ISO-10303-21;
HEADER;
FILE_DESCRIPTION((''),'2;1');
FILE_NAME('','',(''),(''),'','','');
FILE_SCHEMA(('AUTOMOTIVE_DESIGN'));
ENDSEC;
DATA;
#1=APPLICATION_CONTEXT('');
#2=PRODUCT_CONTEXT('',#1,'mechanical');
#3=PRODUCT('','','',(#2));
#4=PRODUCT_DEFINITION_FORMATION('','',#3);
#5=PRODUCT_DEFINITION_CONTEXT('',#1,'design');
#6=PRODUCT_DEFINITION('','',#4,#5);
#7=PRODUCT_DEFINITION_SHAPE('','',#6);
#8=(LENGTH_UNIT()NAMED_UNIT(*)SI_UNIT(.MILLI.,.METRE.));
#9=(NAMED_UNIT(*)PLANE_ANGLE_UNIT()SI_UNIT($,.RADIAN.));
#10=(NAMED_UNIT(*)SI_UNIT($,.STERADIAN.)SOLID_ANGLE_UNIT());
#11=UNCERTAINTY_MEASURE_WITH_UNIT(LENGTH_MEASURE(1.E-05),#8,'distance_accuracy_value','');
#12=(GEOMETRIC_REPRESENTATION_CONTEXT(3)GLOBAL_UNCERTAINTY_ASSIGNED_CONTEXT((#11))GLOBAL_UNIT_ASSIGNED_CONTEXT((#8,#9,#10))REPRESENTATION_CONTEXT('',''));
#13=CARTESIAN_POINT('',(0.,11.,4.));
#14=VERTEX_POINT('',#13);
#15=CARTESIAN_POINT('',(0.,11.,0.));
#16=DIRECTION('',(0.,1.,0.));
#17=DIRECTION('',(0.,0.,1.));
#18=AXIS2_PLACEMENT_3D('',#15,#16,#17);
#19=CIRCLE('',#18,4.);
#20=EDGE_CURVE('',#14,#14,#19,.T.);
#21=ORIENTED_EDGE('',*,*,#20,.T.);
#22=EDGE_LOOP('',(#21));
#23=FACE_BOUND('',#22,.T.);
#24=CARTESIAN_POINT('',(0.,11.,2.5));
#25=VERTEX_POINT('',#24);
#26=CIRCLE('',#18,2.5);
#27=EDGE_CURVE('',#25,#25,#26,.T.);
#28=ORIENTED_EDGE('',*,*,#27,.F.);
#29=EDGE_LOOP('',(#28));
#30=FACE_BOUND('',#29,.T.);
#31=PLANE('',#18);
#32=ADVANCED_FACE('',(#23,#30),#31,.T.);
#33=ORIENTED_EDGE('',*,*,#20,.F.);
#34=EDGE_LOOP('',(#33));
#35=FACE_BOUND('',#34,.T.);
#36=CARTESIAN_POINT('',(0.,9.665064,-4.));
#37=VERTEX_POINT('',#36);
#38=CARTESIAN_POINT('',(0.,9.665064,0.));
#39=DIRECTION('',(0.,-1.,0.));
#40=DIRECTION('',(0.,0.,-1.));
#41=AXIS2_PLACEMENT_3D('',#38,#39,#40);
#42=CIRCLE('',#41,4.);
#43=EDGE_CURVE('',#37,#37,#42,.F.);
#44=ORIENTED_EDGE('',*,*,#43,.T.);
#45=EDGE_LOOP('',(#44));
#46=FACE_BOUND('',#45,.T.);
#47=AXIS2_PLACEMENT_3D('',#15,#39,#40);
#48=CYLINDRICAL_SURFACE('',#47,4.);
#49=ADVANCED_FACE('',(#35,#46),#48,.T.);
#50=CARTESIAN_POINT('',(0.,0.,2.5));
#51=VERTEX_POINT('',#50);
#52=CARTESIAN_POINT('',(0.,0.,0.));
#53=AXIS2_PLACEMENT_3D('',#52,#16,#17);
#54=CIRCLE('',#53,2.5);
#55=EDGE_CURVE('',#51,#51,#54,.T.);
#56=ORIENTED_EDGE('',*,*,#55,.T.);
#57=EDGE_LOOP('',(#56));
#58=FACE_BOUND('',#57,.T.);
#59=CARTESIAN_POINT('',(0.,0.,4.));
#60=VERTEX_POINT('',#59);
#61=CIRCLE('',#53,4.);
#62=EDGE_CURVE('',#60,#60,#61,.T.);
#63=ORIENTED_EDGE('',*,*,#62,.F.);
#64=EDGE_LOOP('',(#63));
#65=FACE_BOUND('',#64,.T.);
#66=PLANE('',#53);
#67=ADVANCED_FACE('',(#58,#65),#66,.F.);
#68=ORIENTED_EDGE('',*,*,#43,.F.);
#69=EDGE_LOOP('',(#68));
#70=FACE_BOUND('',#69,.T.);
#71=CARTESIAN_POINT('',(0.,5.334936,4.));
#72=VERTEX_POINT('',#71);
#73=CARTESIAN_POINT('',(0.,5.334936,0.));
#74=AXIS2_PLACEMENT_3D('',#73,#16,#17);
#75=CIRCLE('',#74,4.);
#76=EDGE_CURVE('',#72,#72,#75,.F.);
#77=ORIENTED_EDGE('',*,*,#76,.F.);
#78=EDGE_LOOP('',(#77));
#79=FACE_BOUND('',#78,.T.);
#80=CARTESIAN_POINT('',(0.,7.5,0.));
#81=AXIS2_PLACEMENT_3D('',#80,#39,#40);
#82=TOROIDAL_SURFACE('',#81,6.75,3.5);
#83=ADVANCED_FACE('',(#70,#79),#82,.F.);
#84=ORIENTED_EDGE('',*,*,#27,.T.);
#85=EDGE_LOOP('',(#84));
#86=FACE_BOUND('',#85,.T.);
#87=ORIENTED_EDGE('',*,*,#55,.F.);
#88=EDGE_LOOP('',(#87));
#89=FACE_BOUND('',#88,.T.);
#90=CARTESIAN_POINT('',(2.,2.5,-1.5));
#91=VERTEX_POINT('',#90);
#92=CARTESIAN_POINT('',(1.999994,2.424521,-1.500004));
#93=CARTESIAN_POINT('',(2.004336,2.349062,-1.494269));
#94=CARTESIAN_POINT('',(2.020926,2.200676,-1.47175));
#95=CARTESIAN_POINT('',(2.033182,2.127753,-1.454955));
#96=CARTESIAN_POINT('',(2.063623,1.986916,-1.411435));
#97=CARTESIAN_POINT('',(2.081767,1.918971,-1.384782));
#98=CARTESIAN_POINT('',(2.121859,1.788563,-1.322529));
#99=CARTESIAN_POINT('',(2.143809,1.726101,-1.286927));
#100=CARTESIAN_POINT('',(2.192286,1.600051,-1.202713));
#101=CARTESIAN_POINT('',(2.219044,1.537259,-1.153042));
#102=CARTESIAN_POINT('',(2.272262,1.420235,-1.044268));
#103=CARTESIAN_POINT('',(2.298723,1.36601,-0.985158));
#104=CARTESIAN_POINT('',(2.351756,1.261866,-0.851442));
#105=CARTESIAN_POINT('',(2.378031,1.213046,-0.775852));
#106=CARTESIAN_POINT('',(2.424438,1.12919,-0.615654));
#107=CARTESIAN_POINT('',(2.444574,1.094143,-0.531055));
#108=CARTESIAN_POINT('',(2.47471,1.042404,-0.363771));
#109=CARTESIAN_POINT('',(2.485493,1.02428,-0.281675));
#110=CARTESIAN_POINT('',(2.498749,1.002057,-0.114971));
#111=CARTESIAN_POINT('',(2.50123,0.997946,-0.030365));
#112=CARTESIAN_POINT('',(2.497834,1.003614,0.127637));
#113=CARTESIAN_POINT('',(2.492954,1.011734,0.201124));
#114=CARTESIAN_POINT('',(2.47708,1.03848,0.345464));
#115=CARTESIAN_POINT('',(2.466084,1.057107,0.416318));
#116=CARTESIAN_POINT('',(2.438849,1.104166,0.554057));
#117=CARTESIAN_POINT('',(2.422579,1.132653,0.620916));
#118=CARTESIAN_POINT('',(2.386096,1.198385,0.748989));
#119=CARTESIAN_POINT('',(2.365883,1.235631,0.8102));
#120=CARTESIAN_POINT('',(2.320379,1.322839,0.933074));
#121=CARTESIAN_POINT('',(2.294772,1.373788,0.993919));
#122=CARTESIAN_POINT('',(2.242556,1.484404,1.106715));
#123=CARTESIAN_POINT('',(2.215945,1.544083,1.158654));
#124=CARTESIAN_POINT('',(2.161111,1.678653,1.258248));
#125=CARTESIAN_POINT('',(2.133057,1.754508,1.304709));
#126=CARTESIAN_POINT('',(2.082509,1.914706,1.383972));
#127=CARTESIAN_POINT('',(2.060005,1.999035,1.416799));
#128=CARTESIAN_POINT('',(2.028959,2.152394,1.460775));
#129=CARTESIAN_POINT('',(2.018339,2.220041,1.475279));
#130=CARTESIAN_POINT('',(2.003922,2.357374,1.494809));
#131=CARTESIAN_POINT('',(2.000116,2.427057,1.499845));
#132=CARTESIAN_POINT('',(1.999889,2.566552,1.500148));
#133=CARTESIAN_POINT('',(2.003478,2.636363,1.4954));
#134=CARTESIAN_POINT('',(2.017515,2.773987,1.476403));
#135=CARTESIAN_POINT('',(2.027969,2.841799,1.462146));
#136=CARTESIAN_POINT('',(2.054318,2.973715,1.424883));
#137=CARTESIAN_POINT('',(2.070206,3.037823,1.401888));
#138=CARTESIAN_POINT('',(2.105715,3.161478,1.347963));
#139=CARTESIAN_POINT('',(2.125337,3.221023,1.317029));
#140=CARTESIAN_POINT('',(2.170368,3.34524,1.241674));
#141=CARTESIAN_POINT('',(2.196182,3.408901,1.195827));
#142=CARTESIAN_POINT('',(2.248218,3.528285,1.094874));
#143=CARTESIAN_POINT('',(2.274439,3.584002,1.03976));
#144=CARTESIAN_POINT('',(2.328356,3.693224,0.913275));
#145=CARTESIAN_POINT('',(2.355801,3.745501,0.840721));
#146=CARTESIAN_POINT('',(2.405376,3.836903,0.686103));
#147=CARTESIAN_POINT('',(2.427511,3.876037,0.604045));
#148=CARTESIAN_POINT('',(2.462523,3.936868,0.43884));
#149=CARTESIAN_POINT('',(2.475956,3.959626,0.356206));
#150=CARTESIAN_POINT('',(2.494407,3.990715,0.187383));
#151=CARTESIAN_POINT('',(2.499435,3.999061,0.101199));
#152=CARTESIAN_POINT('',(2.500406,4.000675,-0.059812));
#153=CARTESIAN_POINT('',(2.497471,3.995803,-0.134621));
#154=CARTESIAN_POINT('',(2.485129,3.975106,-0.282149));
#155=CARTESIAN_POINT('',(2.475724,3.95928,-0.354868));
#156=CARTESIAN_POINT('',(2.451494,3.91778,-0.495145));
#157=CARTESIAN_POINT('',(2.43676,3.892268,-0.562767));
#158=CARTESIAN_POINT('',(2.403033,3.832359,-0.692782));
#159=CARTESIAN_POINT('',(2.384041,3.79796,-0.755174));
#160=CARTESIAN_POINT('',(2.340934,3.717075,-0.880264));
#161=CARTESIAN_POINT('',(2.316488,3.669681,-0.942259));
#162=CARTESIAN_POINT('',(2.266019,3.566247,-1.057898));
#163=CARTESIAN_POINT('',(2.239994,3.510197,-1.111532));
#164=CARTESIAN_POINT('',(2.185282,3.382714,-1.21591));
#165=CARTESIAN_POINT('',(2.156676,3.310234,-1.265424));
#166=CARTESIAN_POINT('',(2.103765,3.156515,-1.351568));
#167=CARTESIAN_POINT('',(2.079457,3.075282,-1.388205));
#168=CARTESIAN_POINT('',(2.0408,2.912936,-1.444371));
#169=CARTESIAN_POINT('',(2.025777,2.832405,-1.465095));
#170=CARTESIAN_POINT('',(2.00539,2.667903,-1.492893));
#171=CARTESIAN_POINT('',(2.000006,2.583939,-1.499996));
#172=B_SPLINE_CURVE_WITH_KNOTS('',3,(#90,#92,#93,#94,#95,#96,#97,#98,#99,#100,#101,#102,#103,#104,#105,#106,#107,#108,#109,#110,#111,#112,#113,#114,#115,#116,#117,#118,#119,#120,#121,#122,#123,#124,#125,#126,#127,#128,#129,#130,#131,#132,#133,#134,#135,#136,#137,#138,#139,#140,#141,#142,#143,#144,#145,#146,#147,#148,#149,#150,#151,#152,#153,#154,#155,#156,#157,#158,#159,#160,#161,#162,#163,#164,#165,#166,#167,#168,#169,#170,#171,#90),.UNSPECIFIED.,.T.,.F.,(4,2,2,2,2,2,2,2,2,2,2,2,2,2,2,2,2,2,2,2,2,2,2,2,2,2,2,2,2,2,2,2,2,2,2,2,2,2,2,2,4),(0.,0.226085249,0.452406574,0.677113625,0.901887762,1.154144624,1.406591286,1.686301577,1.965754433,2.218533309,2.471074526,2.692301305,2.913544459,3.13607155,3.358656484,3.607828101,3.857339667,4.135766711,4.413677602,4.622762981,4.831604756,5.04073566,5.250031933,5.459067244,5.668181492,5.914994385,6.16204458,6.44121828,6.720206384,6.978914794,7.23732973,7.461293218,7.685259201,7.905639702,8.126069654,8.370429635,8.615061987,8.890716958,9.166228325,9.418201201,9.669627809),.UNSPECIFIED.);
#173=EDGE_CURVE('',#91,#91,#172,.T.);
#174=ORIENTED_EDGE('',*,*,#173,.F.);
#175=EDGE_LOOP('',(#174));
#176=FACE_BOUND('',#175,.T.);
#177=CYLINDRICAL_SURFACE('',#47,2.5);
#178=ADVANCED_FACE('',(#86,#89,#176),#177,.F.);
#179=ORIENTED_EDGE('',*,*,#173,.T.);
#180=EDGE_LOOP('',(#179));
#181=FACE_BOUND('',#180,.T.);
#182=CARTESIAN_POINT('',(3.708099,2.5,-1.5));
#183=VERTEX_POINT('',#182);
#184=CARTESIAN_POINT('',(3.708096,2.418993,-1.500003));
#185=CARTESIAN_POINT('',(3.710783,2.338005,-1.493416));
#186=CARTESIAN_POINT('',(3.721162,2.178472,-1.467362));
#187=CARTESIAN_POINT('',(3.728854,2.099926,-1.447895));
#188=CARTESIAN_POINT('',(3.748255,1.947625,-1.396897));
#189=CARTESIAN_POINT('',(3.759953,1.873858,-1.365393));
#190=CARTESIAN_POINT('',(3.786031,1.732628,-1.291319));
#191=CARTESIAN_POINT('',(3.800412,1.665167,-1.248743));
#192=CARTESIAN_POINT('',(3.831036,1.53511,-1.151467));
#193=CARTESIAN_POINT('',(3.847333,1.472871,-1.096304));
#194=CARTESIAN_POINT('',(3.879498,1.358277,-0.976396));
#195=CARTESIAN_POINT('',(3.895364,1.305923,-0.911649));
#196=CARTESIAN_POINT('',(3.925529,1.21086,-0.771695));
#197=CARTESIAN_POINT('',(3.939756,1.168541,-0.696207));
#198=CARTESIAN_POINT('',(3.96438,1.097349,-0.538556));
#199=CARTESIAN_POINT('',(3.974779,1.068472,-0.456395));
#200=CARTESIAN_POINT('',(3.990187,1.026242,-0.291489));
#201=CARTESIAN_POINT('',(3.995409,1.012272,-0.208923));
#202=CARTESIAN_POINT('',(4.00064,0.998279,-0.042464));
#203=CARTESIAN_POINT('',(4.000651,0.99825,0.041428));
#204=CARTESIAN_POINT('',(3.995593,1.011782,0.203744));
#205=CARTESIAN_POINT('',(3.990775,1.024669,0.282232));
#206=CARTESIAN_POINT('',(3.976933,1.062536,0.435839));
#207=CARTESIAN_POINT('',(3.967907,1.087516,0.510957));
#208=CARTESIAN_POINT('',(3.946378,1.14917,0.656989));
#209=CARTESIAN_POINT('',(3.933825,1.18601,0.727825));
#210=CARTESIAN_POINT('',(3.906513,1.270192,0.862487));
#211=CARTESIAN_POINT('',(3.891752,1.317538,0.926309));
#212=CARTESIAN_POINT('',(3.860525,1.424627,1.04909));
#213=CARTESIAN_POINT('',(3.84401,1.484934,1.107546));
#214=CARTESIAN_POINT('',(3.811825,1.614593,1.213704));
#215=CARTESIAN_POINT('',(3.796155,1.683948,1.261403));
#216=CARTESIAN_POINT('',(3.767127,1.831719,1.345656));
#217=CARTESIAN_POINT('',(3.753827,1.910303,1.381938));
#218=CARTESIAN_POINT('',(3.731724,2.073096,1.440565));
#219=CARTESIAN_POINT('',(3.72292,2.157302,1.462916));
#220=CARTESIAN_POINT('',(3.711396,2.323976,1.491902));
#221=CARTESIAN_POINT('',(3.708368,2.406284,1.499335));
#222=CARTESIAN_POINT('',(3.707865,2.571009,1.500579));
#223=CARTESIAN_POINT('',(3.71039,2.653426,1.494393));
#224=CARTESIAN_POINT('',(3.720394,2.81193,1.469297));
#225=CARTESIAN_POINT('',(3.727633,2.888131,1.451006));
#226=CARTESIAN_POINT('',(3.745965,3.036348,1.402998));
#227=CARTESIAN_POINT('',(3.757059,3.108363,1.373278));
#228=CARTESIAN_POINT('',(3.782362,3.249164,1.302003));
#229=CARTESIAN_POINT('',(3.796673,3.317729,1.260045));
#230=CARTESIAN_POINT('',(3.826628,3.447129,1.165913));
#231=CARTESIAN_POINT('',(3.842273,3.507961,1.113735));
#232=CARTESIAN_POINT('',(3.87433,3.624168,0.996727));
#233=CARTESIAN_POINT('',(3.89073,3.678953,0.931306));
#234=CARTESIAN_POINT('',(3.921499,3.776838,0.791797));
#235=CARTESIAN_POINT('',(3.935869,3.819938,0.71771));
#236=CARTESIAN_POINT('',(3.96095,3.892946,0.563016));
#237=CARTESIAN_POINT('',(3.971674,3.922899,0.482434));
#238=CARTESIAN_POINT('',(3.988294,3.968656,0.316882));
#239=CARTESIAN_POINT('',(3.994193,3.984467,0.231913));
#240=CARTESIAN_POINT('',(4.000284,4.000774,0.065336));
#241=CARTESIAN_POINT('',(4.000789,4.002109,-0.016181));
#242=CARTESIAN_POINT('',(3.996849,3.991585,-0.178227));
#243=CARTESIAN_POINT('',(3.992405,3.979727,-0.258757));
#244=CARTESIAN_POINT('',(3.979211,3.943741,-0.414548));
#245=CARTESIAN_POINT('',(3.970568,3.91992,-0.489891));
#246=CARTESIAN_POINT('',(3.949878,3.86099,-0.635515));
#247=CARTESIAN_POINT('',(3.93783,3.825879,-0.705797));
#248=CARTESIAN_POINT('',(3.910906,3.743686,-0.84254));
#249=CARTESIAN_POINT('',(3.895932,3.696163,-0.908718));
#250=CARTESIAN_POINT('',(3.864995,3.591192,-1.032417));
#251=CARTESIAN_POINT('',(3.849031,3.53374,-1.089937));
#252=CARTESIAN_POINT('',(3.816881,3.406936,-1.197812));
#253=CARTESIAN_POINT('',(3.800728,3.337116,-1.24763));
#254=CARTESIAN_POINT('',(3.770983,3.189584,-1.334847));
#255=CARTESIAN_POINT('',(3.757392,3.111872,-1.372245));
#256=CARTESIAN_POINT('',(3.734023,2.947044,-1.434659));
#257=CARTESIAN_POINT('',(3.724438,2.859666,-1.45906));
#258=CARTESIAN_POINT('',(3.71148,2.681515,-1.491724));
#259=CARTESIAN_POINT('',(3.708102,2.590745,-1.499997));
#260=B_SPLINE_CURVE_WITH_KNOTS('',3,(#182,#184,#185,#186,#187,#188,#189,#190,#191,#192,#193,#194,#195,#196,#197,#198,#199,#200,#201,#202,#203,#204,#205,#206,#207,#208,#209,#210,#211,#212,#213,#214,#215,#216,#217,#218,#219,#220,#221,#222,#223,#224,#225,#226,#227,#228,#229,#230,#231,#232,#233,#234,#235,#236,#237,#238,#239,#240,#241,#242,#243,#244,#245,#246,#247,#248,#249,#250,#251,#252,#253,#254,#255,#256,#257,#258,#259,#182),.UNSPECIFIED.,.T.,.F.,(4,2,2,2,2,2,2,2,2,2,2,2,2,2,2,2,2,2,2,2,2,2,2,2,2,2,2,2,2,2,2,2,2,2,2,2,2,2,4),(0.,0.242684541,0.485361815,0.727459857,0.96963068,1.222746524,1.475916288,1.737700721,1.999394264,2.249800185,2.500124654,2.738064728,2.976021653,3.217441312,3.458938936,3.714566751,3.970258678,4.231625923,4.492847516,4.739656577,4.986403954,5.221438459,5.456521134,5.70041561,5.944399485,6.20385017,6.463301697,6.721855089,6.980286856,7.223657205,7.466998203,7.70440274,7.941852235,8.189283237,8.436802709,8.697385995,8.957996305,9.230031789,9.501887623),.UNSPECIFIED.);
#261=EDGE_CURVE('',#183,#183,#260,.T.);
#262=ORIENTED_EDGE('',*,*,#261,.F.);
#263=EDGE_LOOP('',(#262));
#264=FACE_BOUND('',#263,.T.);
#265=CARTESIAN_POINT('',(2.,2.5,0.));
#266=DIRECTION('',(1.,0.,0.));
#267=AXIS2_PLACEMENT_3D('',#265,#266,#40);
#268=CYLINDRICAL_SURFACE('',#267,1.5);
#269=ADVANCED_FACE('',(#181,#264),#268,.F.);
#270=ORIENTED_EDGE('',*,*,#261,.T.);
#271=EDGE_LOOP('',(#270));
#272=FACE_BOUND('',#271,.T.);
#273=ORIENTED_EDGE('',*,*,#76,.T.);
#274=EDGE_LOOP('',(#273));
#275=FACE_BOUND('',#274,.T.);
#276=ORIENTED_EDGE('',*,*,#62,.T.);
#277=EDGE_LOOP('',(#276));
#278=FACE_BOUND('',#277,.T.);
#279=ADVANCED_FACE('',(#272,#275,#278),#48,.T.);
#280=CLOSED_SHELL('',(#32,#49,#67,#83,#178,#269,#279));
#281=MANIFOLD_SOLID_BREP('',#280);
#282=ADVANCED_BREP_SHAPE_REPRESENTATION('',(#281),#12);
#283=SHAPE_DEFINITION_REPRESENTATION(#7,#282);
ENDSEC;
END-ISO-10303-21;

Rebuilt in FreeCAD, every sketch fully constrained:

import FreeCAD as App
import Part
import Sketcher
from FreeCAD import Vector

doc = App.newDocument("Part")
body = doc.addObject("PartDesign::Body", "Body")

# Sketch on XZ plane
sketch1 = body.newObject("Sketcher::SketchObject", "Sketch")
sketch1.AttachmentSupport = (doc.getObject("XZ_Plane"), [""])
sketch1.MapMode = "FlatFace"
sketch1.addGeometry([
    Part.Circle(Vector(0, 0, 0), Vector(0, 0, 1), 4),
    Part.Circle(Vector(0, 0, 0), Vector(0, 0, 1), 2.5),
], False)
sketch1.addConstraint([
    Sketcher.Constraint("Coincident", 0, 3, -1, 1),
    Sketcher.Constraint("Coincident", 1, 3, -1, 1),
    Sketcher.Constraint("Diameter", 0, 8.0),
    Sketcher.Constraint("Diameter", 1, 5.0),
])
pad1 = body.newObject("PartDesign::Pad", "Pad")
pad1.Profile = sketch1
pad1.Length = 11
pad1.Reversed = True

# Sketch on YZ plane
sketch2 = body.newObject("Sketcher::SketchObject", "Sketch001")
sketch2.AttachmentSupport = (doc.getObject("YZ_Plane"), [""])
sketch2.MapMode = "FlatFace"
sketch2.AttachmentOffset = App.Placement(Vector(0, 0, 4), App.Rotation())
sketch2.addGeometry(Part.Circle(Vector(2.5, 0, 0), Vector(0, 0, 1), 1.5), False)
sketch2.addConstraint([
    Sketcher.Constraint("PointOnObject", 0, 3, -1),
    Sketcher.Constraint("Diameter", 0, 3.0),
    Sketcher.Constraint("DistanceX", -1, 1, 0, 3, 2.5),
])
pocket1 = body.newObject("PartDesign::Pocket", "Pocket")
pocket1.Profile = sketch2
pocket1.Length = 2

# Sketch on XY plane
sketch3 = body.newObject("Sketcher::SketchObject", "Sketch002")
sketch3.AttachmentSupport = (doc.getObject("XY_Plane"), [""])
sketch3.MapMode = "FlatFace"
sketch3.addGeometry(Part.Circle(Vector(6.8, 7.5, 0), Vector(0, 0, 1), 3.5), False)
sketch3.addConstraint([
    Sketcher.Constraint("Diameter", 0, 7.0),
    Sketcher.Constraint("DistanceY", -1, 1, 0, 3, 7.5),
    Sketcher.Constraint("DistanceX", -1, 1, 0, 3, 6.75),
])
groove = body.newObject("PartDesign::Groove", "Groove")
groove.Profile = sketch3
groove.ReferenceAxis = (sketch3, ["V_Axis"])
groove.Angle = 360

doc.recompute()
